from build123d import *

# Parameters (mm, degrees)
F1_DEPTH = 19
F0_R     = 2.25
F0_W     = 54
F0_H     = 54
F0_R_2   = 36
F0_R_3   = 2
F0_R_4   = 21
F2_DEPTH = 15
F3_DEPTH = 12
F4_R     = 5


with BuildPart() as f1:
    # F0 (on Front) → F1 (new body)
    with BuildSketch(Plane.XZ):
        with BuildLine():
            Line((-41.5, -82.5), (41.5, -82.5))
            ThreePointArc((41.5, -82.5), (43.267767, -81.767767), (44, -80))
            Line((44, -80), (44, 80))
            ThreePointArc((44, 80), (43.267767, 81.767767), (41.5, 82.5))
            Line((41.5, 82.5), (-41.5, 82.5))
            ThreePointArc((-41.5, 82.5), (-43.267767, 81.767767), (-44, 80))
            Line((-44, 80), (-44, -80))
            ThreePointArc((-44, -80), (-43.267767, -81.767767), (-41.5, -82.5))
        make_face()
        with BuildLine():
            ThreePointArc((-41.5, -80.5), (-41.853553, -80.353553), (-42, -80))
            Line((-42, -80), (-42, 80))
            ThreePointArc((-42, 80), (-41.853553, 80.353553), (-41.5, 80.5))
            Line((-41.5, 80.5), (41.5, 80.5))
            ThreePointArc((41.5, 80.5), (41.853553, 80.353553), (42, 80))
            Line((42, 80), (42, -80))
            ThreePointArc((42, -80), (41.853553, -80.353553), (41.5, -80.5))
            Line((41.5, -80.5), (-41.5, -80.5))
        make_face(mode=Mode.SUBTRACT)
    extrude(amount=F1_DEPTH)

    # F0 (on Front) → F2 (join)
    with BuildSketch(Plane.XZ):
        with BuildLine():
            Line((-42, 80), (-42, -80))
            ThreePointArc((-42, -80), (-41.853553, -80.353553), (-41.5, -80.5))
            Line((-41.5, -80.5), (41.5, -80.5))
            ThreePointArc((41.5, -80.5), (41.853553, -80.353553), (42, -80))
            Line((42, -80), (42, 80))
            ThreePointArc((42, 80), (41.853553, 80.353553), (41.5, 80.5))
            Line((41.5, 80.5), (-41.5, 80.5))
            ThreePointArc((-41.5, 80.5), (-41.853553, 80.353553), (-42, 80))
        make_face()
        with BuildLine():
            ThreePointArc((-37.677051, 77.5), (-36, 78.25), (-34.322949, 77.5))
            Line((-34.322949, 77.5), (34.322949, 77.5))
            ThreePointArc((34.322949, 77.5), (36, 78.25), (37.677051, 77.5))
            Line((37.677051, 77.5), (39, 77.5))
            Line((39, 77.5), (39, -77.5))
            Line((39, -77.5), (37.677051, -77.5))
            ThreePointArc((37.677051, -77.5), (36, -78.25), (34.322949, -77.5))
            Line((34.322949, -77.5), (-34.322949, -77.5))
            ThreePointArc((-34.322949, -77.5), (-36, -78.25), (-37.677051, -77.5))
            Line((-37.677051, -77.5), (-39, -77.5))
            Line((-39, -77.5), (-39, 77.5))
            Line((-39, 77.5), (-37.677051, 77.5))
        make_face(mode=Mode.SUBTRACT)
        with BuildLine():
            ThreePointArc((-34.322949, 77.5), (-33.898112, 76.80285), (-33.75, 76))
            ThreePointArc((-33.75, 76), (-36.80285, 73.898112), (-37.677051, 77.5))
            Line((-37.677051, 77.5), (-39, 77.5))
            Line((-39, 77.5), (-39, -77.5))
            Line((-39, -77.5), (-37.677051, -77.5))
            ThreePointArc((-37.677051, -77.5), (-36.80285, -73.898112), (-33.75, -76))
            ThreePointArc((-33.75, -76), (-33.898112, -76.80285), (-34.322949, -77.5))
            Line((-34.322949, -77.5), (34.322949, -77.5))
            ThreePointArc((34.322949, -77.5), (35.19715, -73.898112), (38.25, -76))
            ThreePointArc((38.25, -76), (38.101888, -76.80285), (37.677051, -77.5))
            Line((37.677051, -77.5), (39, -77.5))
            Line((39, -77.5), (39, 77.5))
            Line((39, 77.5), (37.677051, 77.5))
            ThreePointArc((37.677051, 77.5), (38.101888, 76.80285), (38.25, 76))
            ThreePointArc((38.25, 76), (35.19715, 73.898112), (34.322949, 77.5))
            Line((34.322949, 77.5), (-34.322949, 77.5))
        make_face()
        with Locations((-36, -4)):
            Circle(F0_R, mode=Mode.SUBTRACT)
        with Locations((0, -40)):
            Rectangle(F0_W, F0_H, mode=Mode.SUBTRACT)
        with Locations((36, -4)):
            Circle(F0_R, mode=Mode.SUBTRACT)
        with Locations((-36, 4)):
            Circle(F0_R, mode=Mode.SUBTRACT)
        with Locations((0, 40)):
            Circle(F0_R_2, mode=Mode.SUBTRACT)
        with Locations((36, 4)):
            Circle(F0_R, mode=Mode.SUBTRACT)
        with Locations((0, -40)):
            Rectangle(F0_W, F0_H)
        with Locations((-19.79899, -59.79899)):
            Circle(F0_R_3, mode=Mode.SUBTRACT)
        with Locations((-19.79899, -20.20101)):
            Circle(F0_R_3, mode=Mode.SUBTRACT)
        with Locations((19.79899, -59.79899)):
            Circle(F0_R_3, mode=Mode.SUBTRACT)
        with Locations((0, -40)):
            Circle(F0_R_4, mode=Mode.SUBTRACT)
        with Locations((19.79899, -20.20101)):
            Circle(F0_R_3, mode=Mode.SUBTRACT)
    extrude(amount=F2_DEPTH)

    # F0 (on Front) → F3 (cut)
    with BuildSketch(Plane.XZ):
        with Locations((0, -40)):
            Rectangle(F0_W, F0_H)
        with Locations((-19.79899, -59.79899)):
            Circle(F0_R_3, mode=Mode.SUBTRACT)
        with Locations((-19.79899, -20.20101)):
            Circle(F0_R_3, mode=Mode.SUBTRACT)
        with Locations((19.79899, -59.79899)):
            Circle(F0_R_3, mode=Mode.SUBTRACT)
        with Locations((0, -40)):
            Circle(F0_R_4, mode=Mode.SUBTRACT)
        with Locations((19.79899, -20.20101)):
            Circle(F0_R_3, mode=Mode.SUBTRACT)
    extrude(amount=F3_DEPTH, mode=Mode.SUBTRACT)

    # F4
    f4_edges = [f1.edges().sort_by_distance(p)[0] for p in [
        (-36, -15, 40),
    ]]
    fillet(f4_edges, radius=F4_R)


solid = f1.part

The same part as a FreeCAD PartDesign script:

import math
import FreeCAD as App
import Part
import Sketcher

V = App.Vector
Q = App.Units.Quantity


def edges_at(feature, points):
    """Names of the edges that pass closest to the given points."""
    edges = feature.Shape.Edges
    near = lambda p: min(range(len(edges)), key=lambda i: edges[i].distToShape(Part.Vertex(*p))[0])
    return sorted({f"Edge{near(p) + 1}" for p in points})


def add_polygon(sketch, points):
    """Adds a closed chain of lines whose ends are joined by coincident constraints."""
    first, n = sketch.GeometryCount, len(points)
    for a, b in zip(points, points[1:] + points[:1]):
        sketch.addGeometry(Part.LineSegment(App.Vector(*a, 0), App.Vector(*b, 0)), False)
    for i in range(n):
        sketch.addConstraint(Sketcher.Constraint("Coincident", first + i, 2, first + (i + 1) % n, 1))

doc = App.newDocument("Part")
body = doc.addObject("PartDesign::Body", "Body")

sketch1 = doc.addObject("Sketcher::SketchObject", "Sketch")
body.addObject(sketch1)
sketch1.AttachmentSupport = (doc.XZ_Plane, [""])
sketch1.MapMode = "FlatFace"
sketch1.addGeometry([
    Part.LineSegment(V(-41.5, -82.5, 0), V(41.5, -82.5, 0)),
    Part.ArcOfCircle(Part.Circle(V(41.5, -80, 0), V(0, 0, 1), 2.5), math.radians(-90.000004), math.radians(0.000004)),
    Part.LineSegment(V(44, -80, 0), V(44, 80, 0)),
    Part.ArcOfCircle(Part.Circle(V(41.5, 80, 0), V(0, 0, 1), 2.5), math.radians(-0.000004), math.radians(90.000004)),
    Part.LineSegment(V(41.5, 82.5, 0), V(-41.5, 82.5, 0)),
    Part.ArcOfCircle(Part.Circle(V(-41.5, 80, 0), V(0, 0, 1), 2.5), math.radians(89.999996), math.radians(180.000004)),
    Part.LineSegment(V(-44, 80, 0), V(-44, -80, 0)),
    Part.ArcOfCircle(Part.Circle(V(-41.5, -80, 0), V(0, 0, 1), 2.5), math.radians(179.999996), math.radians(270.000004)),
    Part.LineSegment(V(41.5, -80.5, 0), V(-41.5, -80.5, 0)),
    Part.ArcOfCircle(Part.Circle(V(-41.499999, -79.999999, 0), V(0, 0, 1), 0.500001), math.radians(-179.999847), math.radians(-90.000153)),
    Part.LineSegment(V(-42, -80, 0), V(-42, 80, 0)),
    Part.ArcOfCircle(Part.Circle(V(-41.499999, 79.999999, 0), V(0, 0, 1), 0.500001), math.radians(90.000153), math.radians(179.999847)),
    Part.LineSegment(V(-41.5, 80.5, 0), V(41.5, 80.5, 0)),
    Part.ArcOfCircle(Part.Circle(V(41.499999, 79.999999, 0), V(0, 0, 1), 0.500001), math.radians(0.000153), math.radians(89.999847)),
    Part.LineSegment(V(42, 80, 0), V(42, -80, 0)),
    Part.ArcOfCircle(Part.Circle(V(41.499999, -79.999999, 0), V(0, 0, 1), 0.500001), math.radians(-89.999847), math.radians(-0.000153)),
], False)
sketch1.addConstraint([
    Sketcher.Constraint("Tangent", 0, 2, 1, 1),
    Sketcher.Constraint("Tangent", 1, 2, 2, 1),
    Sketcher.Constraint("Tangent", 2, 2, 3, 1),
    Sketcher.Constraint("Tangent", 3, 2, 4, 1),
    Sketcher.Constraint("Tangent", 4, 2, 5, 1),
    Sketcher.Constraint("Tangent", 5, 2, 6, 1),
    Sketcher.Constraint("Tangent", 6, 2, 7, 1),
    Sketcher.Constraint("Tangent", 7, 2, 0, 1),
    Sketcher.Constraint("Coincident", 8, 2, 9, 2),
    Sketcher.Constraint("Coincident", 9, 1, 10, 1),
    Sketcher.Constraint("Coincident", 10, 2, 11, 2),
    Sketcher.Constraint("Coincident", 11, 1, 12, 1),
    Sketcher.Constraint("Coincident", 12, 2, 13, 2),
    Sketcher.Constraint("Coincident", 13, 1, 14, 1),
    Sketcher.Constraint("Coincident", 14, 2, 15, 2),
    Sketcher.Constraint("Coincident", 15, 1, 8, 1),
    Sketcher.Constraint("Horizontal", 0),
    Sketcher.Constraint("Vertical", 2),
    Sketcher.Constraint("Horizontal", 4),
    Sketcher.Constraint("Vertical", 6),
    Sketcher.Constraint("Horizontal", 8),
    Sketcher.Constraint("Vertical", 10),
    Sketcher.Constraint("Horizontal", 12),
    Sketcher.Constraint("Vertical", 14),
    Sketcher.Constraint("Coincident", 9, 3, 7, 3),
    Sketcher.Constraint("Coincident", 11, 3, 5, 3),
    Sketcher.Constraint("Coincident", 13, 3, 3, 3),
    Sketcher.Constraint("Equal", 1, 3),
    Sketcher.Constraint("Equal", 3, 5),
    Sketcher.Constraint("Equal", 5, 7),
    Sketcher.Constraint("Equal", 13, 15),
    Sketcher.Constraint("Symmetric", 1, 3, 5, 3, -1, 1),
    Sketcher.Constraint("Horizontal", 6, 2, 9, 1),
    Sketcher.Constraint("Horizontal", 5, 2, 10, 2),
    Sketcher.Constraint("Horizontal", 10, 2, 13, 1),
    Sketcher.Constraint("Horizontal", 9, 1, 14, 2),
    Sketcher.Constraint("Vertical", 7, 2, 8, 2),
    Sketcher.Constraint("Vertical", 8, 2, 11, 1),
    Sketcher.Constraint("Vertical", 3, 2, 12, 2),
    Sketcher.Constraint("Vertical", 12, 2, 15, 1),
    Sketcher.Constraint("Radius", 1, Q("2.5 mm")),
    Sketcher.Constraint("Radius", 9, Q("0.500001 mm")),
    Sketcher.Constraint("DistanceX", 0, 1, 0, 2, Q("83 mm")),
    Sketcher.Constraint("DistanceY", 2, 1, 2, 2, Q("160 mm")),
])
pad1 = doc.addObject("PartDesign::Pad", "Pad")
body.addObject(pad1)
pad1.Profile = sketch1
pad1.Length = 19

sketch2 = doc.addObject("Sketcher::SketchObject", "Sketch001")
body.addObject(sketch2)
sketch2.AttachmentSupport = (doc.XZ_Plane, [""])
sketch2.MapMode = "FlatFace"
sketch2.addGeometry([
    Part.LineSegment(V(-42, 80, 0), V(-42, -80, 0)),
    Part.ArcOfCircle(Part.Circle(V(-41.499999, -79.999999, 0), V(0, 0, 1), 0.500001), math.radians(-179.999847), math.radians(-90.000153)),
    Part.LineSegment(V(-41.5, -80.5, 0), V(41.5, -80.5, 0)),
    Part.ArcOfCircle(Part.Circle(V(41.499999, -79.999999, 0), V(0, 0, 1), 0.500001), math.radians(-89.999847), math.radians(-0.000153)),
    Part.LineSegment(V(42, -80, 0), V(42, 80, 0)),
    Part.ArcOfCircle(Part.Circle(V(41.499999, 79.999999, 0), V(0, 0, 1), 0.500001), math.radians(0.000153), math.radians(89.999847)),
    Part.LineSegment(V(41.5, 80.5, 0), V(-41.5, 80.5, 0)),
    Part.ArcOfCircle(Part.Circle(V(-41.499999, 79.999999, 0), V(0, 0, 1), 0.500001), math.radians(90.000153), math.radians(179.999847)),
    Part.ArcOfCircle(Part.Circle(V(-36, -76, 0), V(0, 0, 1), 2.25), math.radians(-138.189685), math.radians(-41.810315)),
    Part.ArcOfCircle(Part.Circle(V(-36, -76, 0), V(0, 0, 1), 2.25), math.radians(-0.000005), math.radians(221.81032)),
    Part.ArcOfCircle(Part.Circle(V(-35.999996, -76.000002, 0), V(0, 0, 1), 2.249996), math.radians(-41.810353), math.radians(0.000039)),
    Part.Circle(V(-19.79899, -59.79899, 0), V(0, 0, 1), 2),
    Part.Circle(V(-19.79899, -20.20101, 0), V(0, 0, 1), 2),
    Part.Circle(V(-36, -4, 0), V(0, 0, 1), 2.25),
    Part.Circle(V(0, -40, 0), V(0, 0, 1), 21),
    Part.Circle(V(19.79899, -59.79899, 0), V(0, 0, 1), 2),
    Part.ArcOfCircle(Part.Circle(V(36, -76, 0), V(0, 0, 1), 2.25), math.radians(-138.189685), math.radians(-41.810315)),
    Part.ArcOfCircle(Part.Circle(V(36, -76, 0), V(0, 0, 1), 2.25), math.radians(-0.000005), math.radians(221.81032)),
    Part.ArcOfCircle(Part.Circle(V(36.000004, -76.000002, 0), V(0, 0, 1), 2.249996), math.radians(-41.810353), math.radians(0.000039)),
    Part.Circle(V(19.79899, -20.20101, 0), V(0, 0, 1), 2),
    Part.Circle(V(36, -4, 0), V(0, 0, 1), 2.25),
    Part.Circle(V(-36, 4, 0), V(0, 0, 1), 2.25),
    Part.ArcOfCircle(Part.Circle(V(-36, 76, 0), V(0, 0, 1), 2.25), math.radians(41.810315), math.radians(138.189685)),
    Part.ArcOfCircle(Part.Circle(V(-35.999996, 76.000002, 0), V(0, 0, 1), 2.249996), math.radians(-0.000039), math.radians(41.810353)),
    Part.ArcOfCircle(Part.Circle(V(-36, 76, 0), V(0, 0, 1), 2.25), math.radians(138.18968), math.radians(360.000005)),
    Part.Circle(V(36, 4, 0), V(0, 0, 1), 2.25),
    Part.Circle(V(0, 40, 0), V(0, 0, 1), 36),
    Part.ArcOfCircle(Part.Circle(V(36, 76, 0), V(0, 0, 1), 2.25), math.radians(41.810315), math.radians(138.189685)),
    Part.ArcOfCircle(Part.Circle(V(36.000004, 76.000002, 0), V(0, 0, 1), 2.249996), math.radians(-0.000039), math.radians(41.810353)),
    Part.ArcOfCircle(Part.Circle(V(36, 76, 0), V(0, 0, 1), 2.25), math.radians(138.18968), math.radians(360.000005)),
], False)
sketch2.addConstraint([
    Sketcher.Constraint("Coincident", 0, 2, 1, 1),
    Sketcher.Constraint("Coincident", 1, 2, 2, 1),
    Sketcher.Constraint("Coincident", 2, 2, 3, 1),
    Sketcher.Constraint("Coincident", 3, 2, 4, 1),
    Sketcher.Constraint("Coincident", 4, 2, 5, 1),
    Sketcher.Constraint("Coincident", 5, 2, 6, 1),
    Sketcher.Constraint("Coincident", 6, 2, 7, 1),
    Sketcher.Constraint("Coincident", 7, 2, 0, 1),
    Sketcher.Constraint("Tangent", 8, 1, 9, 2),
    Sketcher.Constraint("Tangent", 9, 1, 10, 2),
    Sketcher.Constraint("Tangent", 10, 1, 8, 2),
    Sketcher.Constraint("Tangent", 16, 1, 17, 2),
    Sketcher.Constraint("Tangent", 17, 1, 18, 2),
    Sketcher.Constraint("Tangent", 18, 1, 16, 2),
    Sketcher.Constraint("Tangent", 22, 1, 23, 2),
    Sketcher.Constraint("Tangent", 23, 1, 24, 2),
    Sketcher.Constraint("Tangent", 24, 1, 22, 2),
    Sketcher.Constraint("Tangent", 27, 1, 28, 2),
    Sketcher.Constraint("Tangent", 28, 1, 29, 2),
    Sketcher.Constraint("Tangent", 29, 1, 27, 2),
    Sketcher.Constraint("Vertical", 0),
    Sketcher.Constraint("Horizontal", 2),
    Sketcher.Constraint("Vertical", 4),
    Sketcher.Constraint("Horizontal", 6),
    Sketcher.Constraint("Equal", 1, 3),
    Sketcher.Constraint("Equal", 3, 5),
    Sketcher.Constraint("Equal", 5, 7),
    Sketcher.Constraint("Equal", 11, 12),
    Sketcher.Constraint("Equal", 9, 13),
    Sketcher.Constraint("Equal", 12, 15),
    Sketcher.Constraint("Equal", 13, 16),
    Sketcher.Constraint("Equal", 15, 19),
    Sketcher.Constraint("Equal", 17, 20),
    Sketcher.Constraint("Equal", 20, 21),
    Sketcher.Constraint("Equal", 21, 22),
    Sketcher.Constraint("Equal", 24, 25),
    Sketcher.Constraint("Equal", 25, 27),
    Sketcher.Constraint("Symmetric", 1, 3, 5, 3, -1, 1),
    Sketcher.Constraint("Symmetric", 20, 3, 21, 3, -1, 1),
    Sketcher.Constraint("Symmetric", 16, 3, 22, 3, -1, 1),
    Sketcher.Constraint("Symmetric", 13, 3, 25, 3, -1, 1),
    Sketcher.Constraint("Symmetric", 14, 3, 26, 3, -1, 1),
    Sketcher.Constraint("Symmetric", 8, 3, 27, 3, -1, 1),
    Sketcher.Constraint("Symmetric", 11, 3, 15, 3, -2),
    Sketcher.Constraint("Symmetric", 8, 3, 16, 3, -2),
    Sketcher.Constraint("Symmetric", 12, 3, 19, 3, -2),
    Sketcher.Constraint("Symmetric", 13, 3, 20, 3, -2),
    Sketcher.Constraint("PointOnObject", 14, 3, -2),
    Sketcher.Constraint("Horizontal", 3, 3, 0, 2),
    Sketcher.Constraint("Horizontal", 0, 2, 3, 2),
    Sketcher.Constraint("Horizontal", 7, 3, 4, 2),
    Sketcher.Constraint("Horizontal", 4, 2, 7, 2),
    Sketcher.Constraint("Horizontal", 18, 3, 9, 1),
    Sketcher.Constraint("Horizontal", 8, 1, 10, 1),
    Sketcher.Constraint("Horizontal", 10, 1, 16, 1),
    Sketcher.Constraint("Horizontal", 9, 1, 17, 1),
    Sketcher.Constraint("Horizontal", 16, 1, 18, 1),
    Sketcher.Constraint("Horizontal", 29, 3, 23, 1),
    Sketcher.Constraint("Horizontal", 22, 1, 24, 1),
    Sketcher.Constraint("Horizontal", 24, 1, 27, 1),
    Sketcher.Constraint("Horizontal", 23, 1, 28, 1),
    Sketcher.Constraint("Horizontal", 27, 1, 29, 1),
    Sketcher.Constraint("Vertical", 11, 3, 12, 3),
    Sketcher.Constraint("Vertical", 9, 3, 13, 3),
    Sketcher.Constraint("Vertical", 7, 3, 1, 2),
    Sketcher.Constraint("Vertical", 5, 3, 2, 2),
    Sketcher.Constraint("Vertical", 2, 2, 5, 2),
    Sketcher.Constraint("Vertical", 1, 2, 6, 2),
    Sketcher.Constraint("Vertical", 10, 1, 22, 1),
    Sketcher.Constraint("Diameter", 11, Q("4 mm")),
    Sketcher.Constraint("Diameter", 14, Q("42 mm")),
    Sketcher.Constraint("Diameter", 26, Q("72 mm")),
    Sketcher.Constraint("Diameter", 13, Q("4.5 mm")),
    Sketcher.Constraint("Radius", 1, Q("0.500001 mm")),
    Sketcher.Constraint("DistanceX", 2, 1, 2, 2, Q("83 mm")),
    Sketcher.Constraint("DistanceY", 0, 2, 0, 1, Q("160 mm")),
    Sketcher.Constraint("DistanceX", 8, 3, -1, 1, Q("36 mm")),
    Sketcher.Constraint("DistanceY", 8, 3, -1, 1, Q("76 mm")),
    Sketcher.Constraint("DistanceY", 13, 3, -1, 1, Q("4 mm")),
    Sketcher.Constraint("DistanceY", 14, 3, -1, 1, Q("40 mm")),
    Sketcher.Constraint("DistanceY", 1, 2, 8, 1, Q("3 mm")),
    Sketcher.Constraint("DistanceX", 11, 3, -1, 1, Q("19.79899 mm")),
    Sketcher.Constraint("DistanceY", 11, 3, -1, 1, Q("59.79899 mm")),
    Sketcher.Constraint("DistanceY", 12, 3, -1, 1, Q("20.20101 mm")),
])
pad2 = doc.addObject("PartDesign::Pad", "Pad001")
body.addObject(pad2)
pad2.Profile = sketch2
pad2.Length = 15

sketch3 = doc.addObject("Sketcher::SketchObject", "Sketch002")
body.addObject(sketch3)
sketch3.AttachmentSupport = (doc.XZ_Plane, [""])
sketch3.MapMode = "FlatFace"
add_polygon(sketch3, [(-27, -13), (-27, -67), (27, -67), (27, -13)])
sketch3.addGeometry(Part.Circle(V(-19.79899, -59.79899, 0), V(0, 0, 1), 2), False)
sketch3.addGeometry(Part.Circle(V(19.79899, -59.79899, 0), V(0, 0, 1), 2), False)
sketch3.addGeometry(Part.Circle(V(-19.79899, -20.20101, 0), V(0, 0, 1), 2), False)
sketch3.addGeometry(Part.Circle(V(0, -40, 0), V(0, 0, 1), 21), False)
sketch3.addGeometry(Part.Circle(V(19.79899, -20.20101, 0), V(0, 0, 1), 2), False)
sketch3.addConstraint([
    Sketcher.Constraint("Vertical", 0),
    Sketcher.Constraint("Horizontal", 1),
    Sketcher.Constraint("Vertical", 2),
    Sketcher.Constraint("Horizontal", 3),
    Sketcher.Constraint("Equal", 4, 5),
    Sketcher.Constraint("Equal", 5, 6),
    Sketcher.Constraint("Equal", 6, 8),
    Sketcher.Constraint("Symmetric", 4, 3, 5, 3, -2),
    Sketcher.Constraint("Symmetric", 6, 3, 8, 3, -2),
    Sketcher.Constraint("PointOnObject", 7, 3, -2),
    Sketcher.Constraint("Vertical", 4, 3, 6, 3),
    Sketcher.Constraint("Equal", 3, 0),
    Sketcher.Constraint("Diameter", 4, Q("4 mm")),
    Sketcher.Constraint("Diameter", 7, Q("42 mm")),
    Sketcher.Constraint("DistanceX", 1, 1, 1, 2, Q("54 mm")),
    Sketcher.Constraint("DistanceY", 7, 3, -1, 1, Q("40 mm")),
    Sketcher.Constraint("DistanceX", 0, 2, -1, 1, Q("27 mm")),
    Sketcher.Constraint("DistanceY", 0, 2, -1, 1, Q("67 mm")),
    Sketcher.Constraint("DistanceX", 4, 3, -1, 1, Q("19.79899 mm")),
    Sketcher.Constraint("DistanceY", 4, 3, -1, 1, Q("59.79899 mm")),
    Sketcher.Constraint("DistanceY", 6, 3, -1, 1, Q("20.20101 mm")),
])
pocket1 = doc.addObject("PartDesign::Pocket", "Pocket")
body.addObject(pocket1)
pocket1.Profile = sketch3
pocket1.Length = 12
pocket1.Reversed = True
doc.recompute()

fillet = doc.addObject("PartDesign::Fillet", "Fillet")
body.addObject(fillet)
fillet.Base = (pocket1, edges_at(pocket1, [(-36, -15, 40)]))
fillet.Radius = 5

doc.recompute()
